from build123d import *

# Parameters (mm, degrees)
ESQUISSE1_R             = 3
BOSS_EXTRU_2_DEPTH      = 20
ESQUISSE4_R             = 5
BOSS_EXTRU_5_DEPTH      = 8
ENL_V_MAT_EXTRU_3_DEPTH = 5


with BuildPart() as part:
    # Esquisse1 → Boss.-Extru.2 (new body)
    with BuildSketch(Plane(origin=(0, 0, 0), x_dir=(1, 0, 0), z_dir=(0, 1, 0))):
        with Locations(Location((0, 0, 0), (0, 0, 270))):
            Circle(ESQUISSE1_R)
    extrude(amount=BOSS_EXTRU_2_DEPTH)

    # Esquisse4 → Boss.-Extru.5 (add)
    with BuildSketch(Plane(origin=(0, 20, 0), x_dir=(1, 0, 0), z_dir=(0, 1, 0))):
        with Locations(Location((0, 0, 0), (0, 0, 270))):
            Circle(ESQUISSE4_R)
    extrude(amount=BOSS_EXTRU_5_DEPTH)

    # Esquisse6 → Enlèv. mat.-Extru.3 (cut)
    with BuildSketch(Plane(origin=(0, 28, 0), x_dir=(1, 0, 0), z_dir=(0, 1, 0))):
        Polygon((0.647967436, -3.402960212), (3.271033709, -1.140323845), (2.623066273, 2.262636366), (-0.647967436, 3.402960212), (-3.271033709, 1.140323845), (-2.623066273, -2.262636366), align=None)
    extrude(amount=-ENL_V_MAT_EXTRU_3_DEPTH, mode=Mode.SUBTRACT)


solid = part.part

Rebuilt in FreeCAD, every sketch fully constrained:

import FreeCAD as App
import Part
import Sketcher

doc = App.newDocument("Part")
params = doc.addObject("Spreadsheet::Sheet", "Params")
for row, (alias, value) in enumerate([
    ("sketch1_diameter", "6 mm"),
    ("pad1_length", "20 mm"),
    ("sketch2_diameter", "10 mm"),
    ("pad2_length", "8 mm"),
    ("pocket1_length", "5 mm"),
], start=1):
    params.set(f"A{row}", alias)
    params.set(f"B{row}", "=" + value)
    params.setAlias(f"B{row}", alias)

body = doc.addObject("PartDesign::Body", "Body")

sketch1 = body.newObject("Sketcher::SketchObject", "Sketch")
sketch1.AttachmentSupport = (doc.getObject("XZ_Plane"), [""])
sketch1.MapMode = "FlatFace"
sketch1.addGeometry(Part.Circle(App.Vector(0, 0, 0), App.Vector(0, 0, 1), 3), False)
sketch1.addConstraint(Sketcher.Constraint("Coincident", 0, 3, -1, 1))
sketch1.addConstraint(Sketcher.Constraint("Diameter", 0, 6.0))
sketch1.setExpression("Constraints[1]", "Params.sketch1_diameter")
pad1 = body.newObject("PartDesign::Pad", "Pad")
pad1.Profile = sketch1
pad1.setExpression("Length", "Params.pad1_length")
pad1.Reversed = True

sketch2 = body.newObject("Sketcher::SketchObject", "Sketch001")
sketch2.AttachmentSupport = (doc.getObject("XZ_Plane"), [""])
sketch2.MapMode = "FlatFace"
sketch2.AttachmentOffset = App.Placement(App.Vector(0, 0, -20), App.Rotation())
sketch2.addGeometry(Part.Circle(App.Vector(0, 0, 0), App.Vector(0, 0, 1), 5), False)
sketch2.addConstraint(Sketcher.Constraint("Coincident", 0, 3, -1, 1))
sketch2.addConstraint(Sketcher.Constraint("Diameter", 0, 10.0))
sketch2.setExpression("Constraints[1]", "Params.sketch2_diameter")
pad2 = body.newObject("PartDesign::Pad", "Pad001")
pad2.Profile = sketch2
pad2.setExpression("Length", "Params.pad2_length")
pad2.Reversed = True

sketch3 = body.newObject("Sketcher::SketchObject", "Sketch002")
sketch3.AttachmentSupport = (doc.getObject("XZ_Plane"), [""])
sketch3.MapMode = "FlatFace"
sketch3.AttachmentOffset = App.Placement(App.Vector(0, 0, -28), App.Rotation())
sketch3.addGeometry(Part.LineSegment(App.Vector(0.6, 3.4, 0), App.Vector(3.3, 1.1, 0)), False)
sketch3.addGeometry(Part.LineSegment(App.Vector(3.3, 1.1, 0), App.Vector(2.6, -2.3, 0)), False)
sketch3.addGeometry(Part.LineSegment(App.Vector(2.6, -2.3, 0), App.Vector(-0.6, -3.4, 0)), False)
sketch3.addGeometry(Part.LineSegment(App.Vector(-0.6, -3.4, 0), App.Vector(-3.3, -1.1, 0)), False)
sketch3.addGeometry(Part.LineSegment(App.Vector(-3.3, -1.1, 0), App.Vector(-2.6, 2.3, 0)), False)
sketch3.addGeometry(Part.LineSegment(App.Vector(-2.6, 2.3, 0), App.Vector(0.6, 3.4, 0)), False)
sketch3.addConstraint(Sketcher.Constraint("Coincident", 0, 2, 1, 1))
sketch3.addConstraint(Sketcher.Constraint("Coincident", 1, 2, 2, 1))
sketch3.addConstraint(Sketcher.Constraint("Coincident", 2, 2, 3, 1))
sketch3.addConstraint(Sketcher.Constraint("Coincident", 3, 2, 4, 1))
sketch3.addConstraint(Sketcher.Constraint("Coincident", 4, 2, 5, 1))
sketch3.addConstraint(Sketcher.Constraint("Coincident", 5, 2, 0, 1))
sketch3.addConstraint(Sketcher.Constraint("Symmetric", 0, 2, 3, 2, -1, 1))
sketch3.addConstraint(Sketcher.Constraint("Symmetric", 1, 2, 4, 2, -1, 1))
sketch3.addConstraint(Sketcher.Constraint("Symmetric", 2, 2, 5, 2, -1, 1))
sketch3.addConstraint(Sketcher.Constraint("Equal", 0, 1))
sketch3.addConstraint(Sketcher.Constraint("Equal", 1, 2))
sketch3.addConstraint(Sketcher.Constraint("DistanceX", 2, 2, 0, 2, 3.919001))
sketch3.addConstraint(Sketcher.Constraint("Distance", 0, 3.464102))
sketch3.addConstraint(Sketcher.Constraint("DistanceX", 3, 2, 1, 2, 5.8941))
sketch3.addConstraint(Sketcher.Constraint("DistanceY", 2, 2, -1, 1, 3.40296))
pocket1 = body.newObject("PartDesign::Pocket", "Pocket")
pocket1.Profile = sketch3
pocket1.setExpression("Length", "Params.pocket1_length")
pocket1.Reversed = True

doc.recompute()
